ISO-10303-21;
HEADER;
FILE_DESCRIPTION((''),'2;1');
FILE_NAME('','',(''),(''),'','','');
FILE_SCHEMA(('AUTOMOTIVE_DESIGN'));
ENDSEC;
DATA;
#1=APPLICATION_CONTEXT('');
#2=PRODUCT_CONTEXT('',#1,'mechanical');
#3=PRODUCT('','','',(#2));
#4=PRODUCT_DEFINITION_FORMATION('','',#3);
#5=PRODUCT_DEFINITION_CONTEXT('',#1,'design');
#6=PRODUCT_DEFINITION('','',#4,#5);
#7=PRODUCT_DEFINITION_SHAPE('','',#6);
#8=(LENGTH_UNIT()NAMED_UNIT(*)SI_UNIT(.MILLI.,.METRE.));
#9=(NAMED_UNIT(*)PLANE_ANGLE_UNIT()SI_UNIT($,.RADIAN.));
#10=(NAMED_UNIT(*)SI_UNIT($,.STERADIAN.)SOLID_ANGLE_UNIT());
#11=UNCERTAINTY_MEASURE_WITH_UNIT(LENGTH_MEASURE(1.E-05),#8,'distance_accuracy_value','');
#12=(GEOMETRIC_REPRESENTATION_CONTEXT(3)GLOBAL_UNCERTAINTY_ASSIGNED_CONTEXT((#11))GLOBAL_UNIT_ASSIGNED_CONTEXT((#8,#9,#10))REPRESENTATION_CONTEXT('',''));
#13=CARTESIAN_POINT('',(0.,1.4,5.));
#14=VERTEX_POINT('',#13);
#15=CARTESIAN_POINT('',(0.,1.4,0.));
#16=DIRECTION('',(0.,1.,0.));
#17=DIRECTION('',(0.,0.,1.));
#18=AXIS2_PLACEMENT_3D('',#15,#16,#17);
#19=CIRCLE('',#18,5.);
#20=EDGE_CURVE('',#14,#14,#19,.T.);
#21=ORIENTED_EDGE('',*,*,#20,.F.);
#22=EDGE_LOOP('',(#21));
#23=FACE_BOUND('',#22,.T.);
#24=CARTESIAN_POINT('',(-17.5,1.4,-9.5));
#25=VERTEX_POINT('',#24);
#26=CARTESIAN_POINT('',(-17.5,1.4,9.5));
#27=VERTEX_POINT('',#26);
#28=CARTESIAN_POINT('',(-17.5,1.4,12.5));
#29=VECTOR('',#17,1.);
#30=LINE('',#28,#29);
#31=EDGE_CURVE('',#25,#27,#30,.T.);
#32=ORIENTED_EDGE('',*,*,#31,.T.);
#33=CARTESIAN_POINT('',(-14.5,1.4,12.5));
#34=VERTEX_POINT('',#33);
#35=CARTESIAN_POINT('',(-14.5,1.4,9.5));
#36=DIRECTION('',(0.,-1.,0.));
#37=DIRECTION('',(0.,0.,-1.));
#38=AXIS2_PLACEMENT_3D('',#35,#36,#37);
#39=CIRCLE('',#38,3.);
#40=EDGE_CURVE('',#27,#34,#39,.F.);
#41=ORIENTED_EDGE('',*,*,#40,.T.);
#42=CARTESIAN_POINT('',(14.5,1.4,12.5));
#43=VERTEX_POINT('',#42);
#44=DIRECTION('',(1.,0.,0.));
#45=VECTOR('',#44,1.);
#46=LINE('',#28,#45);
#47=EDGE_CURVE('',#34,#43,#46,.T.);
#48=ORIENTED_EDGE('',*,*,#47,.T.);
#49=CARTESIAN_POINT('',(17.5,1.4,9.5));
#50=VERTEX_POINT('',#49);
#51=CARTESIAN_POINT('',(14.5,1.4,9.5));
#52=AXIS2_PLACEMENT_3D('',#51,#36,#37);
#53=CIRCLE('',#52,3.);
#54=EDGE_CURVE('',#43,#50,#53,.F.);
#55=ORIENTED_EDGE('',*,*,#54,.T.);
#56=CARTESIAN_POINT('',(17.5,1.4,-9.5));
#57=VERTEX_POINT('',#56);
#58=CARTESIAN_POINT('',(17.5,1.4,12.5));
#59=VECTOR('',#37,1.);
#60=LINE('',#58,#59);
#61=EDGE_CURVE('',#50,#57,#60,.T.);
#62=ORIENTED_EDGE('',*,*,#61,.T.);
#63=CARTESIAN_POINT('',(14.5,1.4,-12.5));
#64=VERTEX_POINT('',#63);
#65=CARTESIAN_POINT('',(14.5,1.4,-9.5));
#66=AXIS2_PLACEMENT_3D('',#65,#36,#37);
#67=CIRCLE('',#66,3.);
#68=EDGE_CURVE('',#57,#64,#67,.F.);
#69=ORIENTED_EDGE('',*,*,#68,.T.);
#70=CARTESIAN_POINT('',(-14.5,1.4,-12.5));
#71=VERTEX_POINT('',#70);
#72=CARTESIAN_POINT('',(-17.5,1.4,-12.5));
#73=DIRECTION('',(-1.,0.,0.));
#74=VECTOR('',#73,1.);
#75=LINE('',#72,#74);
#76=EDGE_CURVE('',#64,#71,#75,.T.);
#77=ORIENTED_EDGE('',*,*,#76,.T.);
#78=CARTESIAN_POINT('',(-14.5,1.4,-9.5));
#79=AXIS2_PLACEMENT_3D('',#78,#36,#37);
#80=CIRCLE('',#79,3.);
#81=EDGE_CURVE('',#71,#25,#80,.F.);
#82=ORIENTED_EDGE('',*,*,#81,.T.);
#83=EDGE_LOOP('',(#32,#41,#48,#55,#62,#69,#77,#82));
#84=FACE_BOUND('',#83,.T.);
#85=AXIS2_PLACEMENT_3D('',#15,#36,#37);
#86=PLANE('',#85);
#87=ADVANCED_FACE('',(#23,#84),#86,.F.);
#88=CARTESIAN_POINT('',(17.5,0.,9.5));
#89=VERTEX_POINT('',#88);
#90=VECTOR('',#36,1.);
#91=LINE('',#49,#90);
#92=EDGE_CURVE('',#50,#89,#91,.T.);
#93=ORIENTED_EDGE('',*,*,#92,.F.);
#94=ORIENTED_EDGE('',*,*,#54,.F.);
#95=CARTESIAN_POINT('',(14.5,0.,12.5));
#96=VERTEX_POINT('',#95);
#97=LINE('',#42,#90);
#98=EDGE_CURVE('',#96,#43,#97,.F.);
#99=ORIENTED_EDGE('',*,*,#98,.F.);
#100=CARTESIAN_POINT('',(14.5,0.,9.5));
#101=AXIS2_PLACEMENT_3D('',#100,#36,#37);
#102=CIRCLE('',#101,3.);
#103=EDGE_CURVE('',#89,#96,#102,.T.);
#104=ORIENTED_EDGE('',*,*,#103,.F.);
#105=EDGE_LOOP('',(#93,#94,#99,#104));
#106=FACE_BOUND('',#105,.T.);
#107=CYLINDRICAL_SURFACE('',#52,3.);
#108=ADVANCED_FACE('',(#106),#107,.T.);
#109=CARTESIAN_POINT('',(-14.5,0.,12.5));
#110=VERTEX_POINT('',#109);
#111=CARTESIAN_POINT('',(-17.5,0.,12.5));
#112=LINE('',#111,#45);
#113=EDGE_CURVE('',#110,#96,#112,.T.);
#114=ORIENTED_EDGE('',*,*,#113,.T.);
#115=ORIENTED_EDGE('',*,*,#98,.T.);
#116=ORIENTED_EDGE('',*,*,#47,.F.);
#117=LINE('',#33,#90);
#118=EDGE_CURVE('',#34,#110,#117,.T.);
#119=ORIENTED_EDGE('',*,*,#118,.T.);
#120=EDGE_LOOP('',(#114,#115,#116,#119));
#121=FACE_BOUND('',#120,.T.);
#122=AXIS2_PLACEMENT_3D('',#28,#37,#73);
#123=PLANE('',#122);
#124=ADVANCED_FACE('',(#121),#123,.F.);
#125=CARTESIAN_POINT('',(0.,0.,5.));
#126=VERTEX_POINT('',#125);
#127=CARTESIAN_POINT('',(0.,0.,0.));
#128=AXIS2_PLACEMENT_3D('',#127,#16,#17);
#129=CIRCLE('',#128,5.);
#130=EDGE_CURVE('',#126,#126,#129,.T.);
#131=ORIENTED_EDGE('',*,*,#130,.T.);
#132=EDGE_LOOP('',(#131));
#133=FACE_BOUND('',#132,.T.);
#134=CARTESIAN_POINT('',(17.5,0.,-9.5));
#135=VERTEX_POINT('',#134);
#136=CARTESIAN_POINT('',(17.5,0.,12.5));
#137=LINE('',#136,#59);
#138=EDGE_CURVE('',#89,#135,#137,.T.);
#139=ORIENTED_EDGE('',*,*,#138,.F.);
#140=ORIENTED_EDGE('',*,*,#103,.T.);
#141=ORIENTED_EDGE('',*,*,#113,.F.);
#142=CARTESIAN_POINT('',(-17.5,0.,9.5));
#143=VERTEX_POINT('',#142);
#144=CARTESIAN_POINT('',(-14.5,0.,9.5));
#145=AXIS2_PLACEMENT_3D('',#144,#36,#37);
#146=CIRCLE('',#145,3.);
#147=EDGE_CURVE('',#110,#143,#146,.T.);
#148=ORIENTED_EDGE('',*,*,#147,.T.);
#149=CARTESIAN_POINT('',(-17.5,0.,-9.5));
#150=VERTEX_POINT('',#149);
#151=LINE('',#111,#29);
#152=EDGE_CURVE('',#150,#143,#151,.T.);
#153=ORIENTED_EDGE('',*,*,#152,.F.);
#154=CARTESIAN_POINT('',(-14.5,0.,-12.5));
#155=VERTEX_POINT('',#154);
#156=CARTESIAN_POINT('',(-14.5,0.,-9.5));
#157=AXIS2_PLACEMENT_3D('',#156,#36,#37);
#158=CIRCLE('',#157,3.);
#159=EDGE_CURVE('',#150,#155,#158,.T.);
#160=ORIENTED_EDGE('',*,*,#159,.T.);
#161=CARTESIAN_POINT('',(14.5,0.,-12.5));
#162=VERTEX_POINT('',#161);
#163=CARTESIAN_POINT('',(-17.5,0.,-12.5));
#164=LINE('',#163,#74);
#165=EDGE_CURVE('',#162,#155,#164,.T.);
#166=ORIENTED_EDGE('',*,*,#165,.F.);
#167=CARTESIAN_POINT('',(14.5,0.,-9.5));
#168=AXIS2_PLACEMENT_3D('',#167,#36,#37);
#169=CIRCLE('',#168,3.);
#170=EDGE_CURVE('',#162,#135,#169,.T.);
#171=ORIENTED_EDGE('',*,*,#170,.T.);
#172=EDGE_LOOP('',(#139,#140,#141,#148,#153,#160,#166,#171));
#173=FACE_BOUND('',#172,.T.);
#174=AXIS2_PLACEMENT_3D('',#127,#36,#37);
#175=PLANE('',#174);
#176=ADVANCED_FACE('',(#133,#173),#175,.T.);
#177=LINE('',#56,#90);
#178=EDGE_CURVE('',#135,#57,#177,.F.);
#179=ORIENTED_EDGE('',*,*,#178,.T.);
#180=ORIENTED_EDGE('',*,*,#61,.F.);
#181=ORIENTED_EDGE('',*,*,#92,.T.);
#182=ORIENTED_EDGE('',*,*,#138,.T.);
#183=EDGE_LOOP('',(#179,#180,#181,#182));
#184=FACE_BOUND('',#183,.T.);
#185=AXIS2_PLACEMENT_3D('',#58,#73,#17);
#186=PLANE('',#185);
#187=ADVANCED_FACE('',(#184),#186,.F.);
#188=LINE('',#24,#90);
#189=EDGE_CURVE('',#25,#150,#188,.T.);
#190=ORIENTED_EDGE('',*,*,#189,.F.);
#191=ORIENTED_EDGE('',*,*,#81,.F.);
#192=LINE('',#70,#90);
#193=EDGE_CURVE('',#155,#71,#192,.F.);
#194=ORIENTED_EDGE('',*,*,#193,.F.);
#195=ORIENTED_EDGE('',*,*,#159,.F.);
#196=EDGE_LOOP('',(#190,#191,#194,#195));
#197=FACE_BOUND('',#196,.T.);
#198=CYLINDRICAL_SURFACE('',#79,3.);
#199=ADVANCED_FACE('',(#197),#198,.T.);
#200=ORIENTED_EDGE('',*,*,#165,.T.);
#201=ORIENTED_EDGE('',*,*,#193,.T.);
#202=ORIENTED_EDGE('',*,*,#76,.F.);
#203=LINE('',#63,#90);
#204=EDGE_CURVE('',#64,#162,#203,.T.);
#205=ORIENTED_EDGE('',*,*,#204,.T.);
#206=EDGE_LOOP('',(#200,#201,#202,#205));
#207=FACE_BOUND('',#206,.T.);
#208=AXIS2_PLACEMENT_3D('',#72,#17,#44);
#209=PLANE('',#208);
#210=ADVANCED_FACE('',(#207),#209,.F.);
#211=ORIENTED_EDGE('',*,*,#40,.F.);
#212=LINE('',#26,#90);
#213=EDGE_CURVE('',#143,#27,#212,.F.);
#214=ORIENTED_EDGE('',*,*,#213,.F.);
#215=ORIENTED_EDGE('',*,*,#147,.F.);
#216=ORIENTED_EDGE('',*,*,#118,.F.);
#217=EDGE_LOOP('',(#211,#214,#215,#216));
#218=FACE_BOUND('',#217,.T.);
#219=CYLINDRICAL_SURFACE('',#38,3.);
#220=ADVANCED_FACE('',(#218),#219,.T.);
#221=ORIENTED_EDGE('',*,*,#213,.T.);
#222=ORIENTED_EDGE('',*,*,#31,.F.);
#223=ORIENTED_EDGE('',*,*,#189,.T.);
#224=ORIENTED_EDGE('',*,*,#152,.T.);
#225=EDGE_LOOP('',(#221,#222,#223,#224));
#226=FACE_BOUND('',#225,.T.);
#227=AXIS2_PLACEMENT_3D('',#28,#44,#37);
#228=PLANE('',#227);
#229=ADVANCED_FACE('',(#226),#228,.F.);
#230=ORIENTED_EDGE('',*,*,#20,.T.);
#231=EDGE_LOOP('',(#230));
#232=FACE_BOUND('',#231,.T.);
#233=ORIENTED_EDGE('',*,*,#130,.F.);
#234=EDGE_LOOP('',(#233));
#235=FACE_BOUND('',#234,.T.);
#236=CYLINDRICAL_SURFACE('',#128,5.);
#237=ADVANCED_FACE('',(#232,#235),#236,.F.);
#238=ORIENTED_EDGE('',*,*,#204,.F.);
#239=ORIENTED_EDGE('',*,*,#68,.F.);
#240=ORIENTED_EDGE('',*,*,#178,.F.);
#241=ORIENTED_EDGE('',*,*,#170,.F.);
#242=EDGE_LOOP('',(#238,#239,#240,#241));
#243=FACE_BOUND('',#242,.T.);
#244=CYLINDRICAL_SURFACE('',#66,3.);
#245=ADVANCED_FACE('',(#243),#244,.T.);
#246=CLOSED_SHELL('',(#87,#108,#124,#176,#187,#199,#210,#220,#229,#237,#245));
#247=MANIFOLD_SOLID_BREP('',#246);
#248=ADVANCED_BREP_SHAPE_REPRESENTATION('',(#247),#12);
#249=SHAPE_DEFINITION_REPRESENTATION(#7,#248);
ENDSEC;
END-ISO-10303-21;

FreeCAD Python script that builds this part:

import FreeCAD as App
import Part
import Sketcher
from FreeCAD import Vector
Q = App.Units.Quantity


def edges_at(feature, points):
    """Names of the edges that pass closest to the given points."""
    edges = feature.Shape.Edges
    near = lambda p: min(range(len(edges)), key=lambda i: edges[i].distToShape(Part.Vertex(*p))[0])
    return sorted({f"Edge{near(p) + 1}" for p in points})

doc = App.newDocument("Part")
body = doc.addObject("PartDesign::Body", "Body")

sketch1 = body.newObject("Sketcher::SketchObject", "Sketch")
sketch1.AttachmentSupport = (doc.getObject("XZ_Plane"), [""])
sketch1.MapMode = "FlatFace"
sketch1.addGeometry([
    Part.LineSegment(Vector(-17.5, -12.5, 0), Vector(-17.5, 12.5, 0)),
    Part.LineSegment(Vector(-17.5, 12.5, 0), Vector(17.5, 12.5, 0)),
    Part.LineSegment(Vector(17.5, 12.5, 0), Vector(17.5, -12.5, 0)),
    Part.LineSegment(Vector(17.5, -12.5, 0), Vector(-17.5, -12.5, 0)),
], False)
sketch1.addConstraint([
    Sketcher.Constraint("Coincident", 0, 2, 1, 1),
    Sketcher.Constraint("Coincident", 1, 2, 2, 1),
    Sketcher.Constraint("Coincident", 2, 2, 3, 1),
    Sketcher.Constraint("Coincident", 3, 2, 0, 1),
    Sketcher.Constraint("Vertical", 0),
    Sketcher.Constraint("Horizontal", 1),
    Sketcher.Constraint("Vertical", 2),
    Sketcher.Constraint("Horizontal", 3),
    Sketcher.Constraint("Symmetric", 0, 2, 2, 2, -1, 1),
    Sketcher.Constraint("DistanceX", 1, 1, 1, 2, Q("35 mm")),
    Sketcher.Constraint("DistanceY", 0, 1, 0, 2, Q("25 mm")),
])
pad1 = body.newObject("PartDesign::Pad", "Pad")
pad1.Profile = sketch1
pad1.Length = 1.4
pad1.Reversed = True
doc.recompute()

fillet = body.newObject("PartDesign::Fillet", "Fillet")
fillet.Base = (pad1, edges_at(pad1, [
    (17.5, 0.7, 12.5),
    (-17.5, 0.7, 12.5),
    (-17.5, 0.7, -12.5),
    (17.5, 0.7, -12.5),
]))
fillet.Radius = 3

sketch2 = body.newObject("Sketcher::SketchObject", "Sketch001")
sketch2.AttachmentSupport = (doc.getObject("XZ_Plane"), [""])
sketch2.MapMode = "FlatFace"
sketch2.AttachmentOffset = App.Placement(Vector(0, 0, -1.4), App.Rotation())
sketch2.addGeometry(Part.Circle(Vector(0, 0, 0), Vector(0, 0, 1), 5), False)
sketch2.addConstraint([
    Sketcher.Constraint("Coincident", 0, 3, -1, 1),
    Sketcher.Constraint("Diameter", 0, Q("10 mm")),
])
pocket1 = body.newObject("PartDesign::Pocket", "Pocket")
pocket1.Profile = sketch2
pocket1.Type = "ThroughAll"
pocket1.Reversed = True

doc.recompute()
